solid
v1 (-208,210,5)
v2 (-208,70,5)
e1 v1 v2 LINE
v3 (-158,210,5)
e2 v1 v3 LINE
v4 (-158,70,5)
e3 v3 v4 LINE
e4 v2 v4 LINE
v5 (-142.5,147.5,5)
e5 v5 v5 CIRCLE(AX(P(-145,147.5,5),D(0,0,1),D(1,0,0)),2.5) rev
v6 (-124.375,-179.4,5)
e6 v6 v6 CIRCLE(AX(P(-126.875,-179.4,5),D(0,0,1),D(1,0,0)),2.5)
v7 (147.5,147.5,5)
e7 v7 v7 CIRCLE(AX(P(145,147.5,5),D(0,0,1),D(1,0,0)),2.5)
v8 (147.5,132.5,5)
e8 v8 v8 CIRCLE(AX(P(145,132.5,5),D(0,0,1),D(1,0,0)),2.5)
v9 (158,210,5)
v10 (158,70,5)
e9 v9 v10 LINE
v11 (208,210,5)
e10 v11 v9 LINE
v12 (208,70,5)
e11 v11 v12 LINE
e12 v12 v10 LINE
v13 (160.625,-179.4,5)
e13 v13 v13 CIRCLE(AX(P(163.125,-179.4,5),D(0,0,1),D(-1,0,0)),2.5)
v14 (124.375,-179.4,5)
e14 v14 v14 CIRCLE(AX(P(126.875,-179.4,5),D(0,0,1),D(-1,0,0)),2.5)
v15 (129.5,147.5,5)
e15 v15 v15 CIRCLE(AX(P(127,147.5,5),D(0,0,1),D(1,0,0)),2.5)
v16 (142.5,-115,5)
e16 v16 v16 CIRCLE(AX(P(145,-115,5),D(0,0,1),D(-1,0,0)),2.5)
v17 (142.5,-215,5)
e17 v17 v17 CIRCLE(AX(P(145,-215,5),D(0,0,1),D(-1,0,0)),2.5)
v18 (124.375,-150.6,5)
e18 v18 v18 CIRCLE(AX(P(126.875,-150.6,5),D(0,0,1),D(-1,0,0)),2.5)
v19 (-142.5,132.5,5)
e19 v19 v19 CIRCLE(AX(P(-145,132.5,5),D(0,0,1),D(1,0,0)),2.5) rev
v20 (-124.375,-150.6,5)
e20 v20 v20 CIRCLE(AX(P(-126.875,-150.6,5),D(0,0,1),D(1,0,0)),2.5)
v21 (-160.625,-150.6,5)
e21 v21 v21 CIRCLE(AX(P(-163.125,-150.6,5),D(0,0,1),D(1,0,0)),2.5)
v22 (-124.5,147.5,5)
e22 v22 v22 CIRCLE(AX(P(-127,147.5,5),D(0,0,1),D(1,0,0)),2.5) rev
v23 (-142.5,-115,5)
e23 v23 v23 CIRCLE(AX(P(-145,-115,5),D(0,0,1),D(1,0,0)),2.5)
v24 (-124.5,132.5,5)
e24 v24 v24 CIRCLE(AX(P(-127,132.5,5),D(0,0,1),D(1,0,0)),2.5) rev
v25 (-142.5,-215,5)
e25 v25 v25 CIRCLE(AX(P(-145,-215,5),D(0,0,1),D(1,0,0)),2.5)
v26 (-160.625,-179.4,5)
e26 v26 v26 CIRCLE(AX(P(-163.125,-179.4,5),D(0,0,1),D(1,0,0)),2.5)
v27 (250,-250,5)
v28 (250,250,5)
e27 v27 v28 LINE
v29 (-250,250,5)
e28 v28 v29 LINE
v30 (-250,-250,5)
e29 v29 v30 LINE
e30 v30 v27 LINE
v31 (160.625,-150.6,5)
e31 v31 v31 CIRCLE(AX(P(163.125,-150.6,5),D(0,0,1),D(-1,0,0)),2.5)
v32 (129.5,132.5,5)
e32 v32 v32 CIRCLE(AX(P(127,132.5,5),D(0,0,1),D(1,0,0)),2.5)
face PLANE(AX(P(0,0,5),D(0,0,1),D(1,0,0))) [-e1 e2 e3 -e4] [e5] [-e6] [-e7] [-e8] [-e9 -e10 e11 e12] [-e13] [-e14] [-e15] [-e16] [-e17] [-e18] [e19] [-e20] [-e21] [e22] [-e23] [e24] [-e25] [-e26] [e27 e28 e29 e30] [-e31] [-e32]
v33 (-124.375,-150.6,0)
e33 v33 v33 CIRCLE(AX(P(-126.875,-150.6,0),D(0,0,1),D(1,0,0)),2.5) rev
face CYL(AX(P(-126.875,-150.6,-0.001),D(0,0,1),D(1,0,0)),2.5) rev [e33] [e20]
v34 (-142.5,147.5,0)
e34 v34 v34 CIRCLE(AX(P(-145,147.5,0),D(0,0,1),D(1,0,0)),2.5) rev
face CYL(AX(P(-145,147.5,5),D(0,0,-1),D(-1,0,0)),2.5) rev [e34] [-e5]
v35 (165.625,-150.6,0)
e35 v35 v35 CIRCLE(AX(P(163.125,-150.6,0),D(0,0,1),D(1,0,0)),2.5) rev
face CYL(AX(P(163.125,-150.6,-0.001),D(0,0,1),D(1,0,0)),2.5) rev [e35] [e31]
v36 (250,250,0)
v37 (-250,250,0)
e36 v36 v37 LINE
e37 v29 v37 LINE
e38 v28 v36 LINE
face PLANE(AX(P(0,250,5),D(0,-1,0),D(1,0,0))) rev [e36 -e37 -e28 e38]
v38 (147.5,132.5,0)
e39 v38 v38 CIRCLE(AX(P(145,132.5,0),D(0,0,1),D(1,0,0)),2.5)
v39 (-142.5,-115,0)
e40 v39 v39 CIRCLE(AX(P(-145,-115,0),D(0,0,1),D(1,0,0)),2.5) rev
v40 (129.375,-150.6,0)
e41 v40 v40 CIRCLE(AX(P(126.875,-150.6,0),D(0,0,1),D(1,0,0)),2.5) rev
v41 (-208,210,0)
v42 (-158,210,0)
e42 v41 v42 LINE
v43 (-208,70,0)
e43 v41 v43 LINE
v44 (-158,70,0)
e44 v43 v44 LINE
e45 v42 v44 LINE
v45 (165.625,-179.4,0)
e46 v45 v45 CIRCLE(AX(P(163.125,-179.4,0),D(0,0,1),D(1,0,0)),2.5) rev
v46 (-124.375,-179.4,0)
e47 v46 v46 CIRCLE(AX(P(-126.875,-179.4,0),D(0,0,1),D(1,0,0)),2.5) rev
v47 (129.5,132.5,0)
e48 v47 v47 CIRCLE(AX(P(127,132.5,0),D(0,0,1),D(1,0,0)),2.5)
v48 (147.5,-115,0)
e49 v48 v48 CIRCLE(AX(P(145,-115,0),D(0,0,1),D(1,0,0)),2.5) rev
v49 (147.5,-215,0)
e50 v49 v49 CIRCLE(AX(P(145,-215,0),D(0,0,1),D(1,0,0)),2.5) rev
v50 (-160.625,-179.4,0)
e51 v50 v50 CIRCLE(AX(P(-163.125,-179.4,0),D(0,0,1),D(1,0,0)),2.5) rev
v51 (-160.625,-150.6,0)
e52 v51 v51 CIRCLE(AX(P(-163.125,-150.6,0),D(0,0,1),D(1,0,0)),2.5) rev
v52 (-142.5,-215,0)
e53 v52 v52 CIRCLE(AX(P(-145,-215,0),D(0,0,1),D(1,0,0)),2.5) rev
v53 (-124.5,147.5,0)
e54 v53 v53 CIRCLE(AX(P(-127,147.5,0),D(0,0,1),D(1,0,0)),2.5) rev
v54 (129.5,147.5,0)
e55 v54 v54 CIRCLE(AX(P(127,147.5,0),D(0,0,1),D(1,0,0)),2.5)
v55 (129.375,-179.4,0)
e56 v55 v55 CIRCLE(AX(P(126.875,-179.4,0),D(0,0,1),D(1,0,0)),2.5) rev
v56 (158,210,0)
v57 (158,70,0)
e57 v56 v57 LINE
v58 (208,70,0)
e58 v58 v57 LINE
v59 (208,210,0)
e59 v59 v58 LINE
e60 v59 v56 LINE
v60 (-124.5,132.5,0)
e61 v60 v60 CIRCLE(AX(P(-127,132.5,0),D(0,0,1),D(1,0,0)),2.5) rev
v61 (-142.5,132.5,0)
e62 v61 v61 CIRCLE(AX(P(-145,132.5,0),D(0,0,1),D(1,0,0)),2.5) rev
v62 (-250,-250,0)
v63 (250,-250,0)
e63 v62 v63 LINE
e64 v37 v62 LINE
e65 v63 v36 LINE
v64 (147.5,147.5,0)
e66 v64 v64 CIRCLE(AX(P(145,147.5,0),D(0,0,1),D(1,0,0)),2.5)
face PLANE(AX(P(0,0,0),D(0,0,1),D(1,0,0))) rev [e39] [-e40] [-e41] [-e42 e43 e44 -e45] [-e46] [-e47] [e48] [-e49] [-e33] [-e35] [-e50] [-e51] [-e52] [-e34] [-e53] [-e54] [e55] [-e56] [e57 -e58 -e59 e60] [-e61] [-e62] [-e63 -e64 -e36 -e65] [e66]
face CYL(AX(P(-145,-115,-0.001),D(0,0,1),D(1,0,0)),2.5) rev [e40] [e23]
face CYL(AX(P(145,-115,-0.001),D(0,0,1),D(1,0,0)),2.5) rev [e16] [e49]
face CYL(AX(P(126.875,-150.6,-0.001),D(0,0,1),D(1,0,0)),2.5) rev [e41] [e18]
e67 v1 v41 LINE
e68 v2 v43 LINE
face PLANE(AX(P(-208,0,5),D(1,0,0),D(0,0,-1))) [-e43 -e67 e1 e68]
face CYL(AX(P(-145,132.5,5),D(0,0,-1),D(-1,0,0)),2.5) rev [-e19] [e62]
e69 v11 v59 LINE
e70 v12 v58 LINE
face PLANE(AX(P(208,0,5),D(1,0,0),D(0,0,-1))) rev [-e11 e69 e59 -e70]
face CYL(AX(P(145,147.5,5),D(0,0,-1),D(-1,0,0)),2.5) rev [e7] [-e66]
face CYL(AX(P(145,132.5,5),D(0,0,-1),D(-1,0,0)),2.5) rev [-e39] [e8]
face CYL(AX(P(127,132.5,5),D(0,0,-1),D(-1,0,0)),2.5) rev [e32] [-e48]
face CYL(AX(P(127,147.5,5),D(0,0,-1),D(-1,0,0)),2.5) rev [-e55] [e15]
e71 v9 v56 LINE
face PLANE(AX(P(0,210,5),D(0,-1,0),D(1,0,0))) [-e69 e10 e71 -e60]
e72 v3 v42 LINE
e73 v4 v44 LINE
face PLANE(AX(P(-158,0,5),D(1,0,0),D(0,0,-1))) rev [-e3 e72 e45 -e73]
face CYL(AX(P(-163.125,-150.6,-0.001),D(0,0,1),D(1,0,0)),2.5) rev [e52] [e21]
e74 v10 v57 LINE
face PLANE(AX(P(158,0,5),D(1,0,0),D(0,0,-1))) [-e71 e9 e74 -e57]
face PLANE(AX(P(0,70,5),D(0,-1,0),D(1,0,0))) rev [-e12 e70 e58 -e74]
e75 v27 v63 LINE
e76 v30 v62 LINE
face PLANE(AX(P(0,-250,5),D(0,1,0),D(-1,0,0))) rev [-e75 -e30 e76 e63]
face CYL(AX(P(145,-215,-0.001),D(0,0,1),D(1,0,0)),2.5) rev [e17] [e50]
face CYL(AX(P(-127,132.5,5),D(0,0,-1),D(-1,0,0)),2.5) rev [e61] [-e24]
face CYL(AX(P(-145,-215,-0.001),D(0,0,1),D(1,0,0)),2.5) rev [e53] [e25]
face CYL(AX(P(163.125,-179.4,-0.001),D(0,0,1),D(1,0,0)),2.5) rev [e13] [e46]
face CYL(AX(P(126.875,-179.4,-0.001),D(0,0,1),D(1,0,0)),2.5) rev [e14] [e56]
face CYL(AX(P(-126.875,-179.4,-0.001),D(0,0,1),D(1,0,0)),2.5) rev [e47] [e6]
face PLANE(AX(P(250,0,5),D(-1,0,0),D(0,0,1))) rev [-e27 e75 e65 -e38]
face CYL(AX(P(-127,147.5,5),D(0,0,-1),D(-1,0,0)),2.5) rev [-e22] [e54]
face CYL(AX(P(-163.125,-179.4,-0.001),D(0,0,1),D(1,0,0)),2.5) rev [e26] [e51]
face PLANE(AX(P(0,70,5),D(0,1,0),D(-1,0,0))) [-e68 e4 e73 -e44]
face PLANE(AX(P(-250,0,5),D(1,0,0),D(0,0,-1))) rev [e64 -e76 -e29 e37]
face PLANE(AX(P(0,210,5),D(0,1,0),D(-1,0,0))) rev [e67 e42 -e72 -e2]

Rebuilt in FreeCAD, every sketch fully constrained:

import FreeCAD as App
import Part
import Sketcher
Q = App.Units.Quantity

doc = App.newDocument("Part")
body = doc.addObject("PartDesign::Body", "Body")

# Sketch on XY plane
sketch1 = doc.addObject("Sketcher::SketchObject", "Sketch")
body.addObject(sketch1)
sketch1.AttachmentSupport = (doc.XY_Plane, [""])
sketch1.MapMode = "FlatFace"
sketch1.addGeometry(Part.LineSegment(App.Vector(-250, 250, 0), App.Vector(-250, -250, 0)), False)
sketch1.addGeometry(Part.LineSegment(App.Vector(-250, -250, 0), App.Vector(250, -250, 0)), False)
sketch1.addGeometry(Part.LineSegment(App.Vector(250, -250, 0), App.Vector(250, 250, 0)), False)
sketch1.addGeometry(Part.LineSegment(App.Vector(250, 250, 0), App.Vector(-250, 250, 0)), False)
sketch1.addGeometry(Part.Circle(App.Vector(-145, 132.5, 0), App.Vector(0, 0, 1), 2.5), False)
sketch1.addGeometry(Part.Circle(App.Vector(-127, 132.5, 0), App.Vector(0, 0, 1), 2.5), False)
sketch1.addGeometry(Part.Circle(App.Vector(127, 132.5, 0), App.Vector(0, 0, 1), 2.5), False)
sketch1.addGeometry(Part.Circle(App.Vector(145, 132.5, 0), App.Vector(0, 0, 1), 2.5), False)
sketch1.addGeometry(Part.LineSegment(App.Vector(-158, 70, 0), App.Vector(-208, 70, 0)), False)
sketch1.addGeometry(Part.LineSegment(App.Vector(-208, 70, 0), App.Vector(-208, 210, 0)), False)
sketch1.addGeometry(Part.LineSegment(App.Vector(-208, 210, 0), App.Vector(-158, 210, 0)), False)
sketch1.addGeometry(Part.LineSegment(App.Vector(-158, 210, 0), App.Vector(-158, 70, 0)), False)
sketch1.addGeometry(Part.Circle(App.Vector(-145, 147.5, 0), App.Vector(0, 0, 1), 2.5), False)
sketch1.addGeometry(Part.Circle(App.Vector(-127, 147.5, 0), App.Vector(0, 0, 1), 2.5), False)
sketch1.addGeometry(Part.Circle(App.Vector(127, 147.5, 0), App.Vector(0, 0, 1), 2.5), False)
sketch1.addGeometry(Part.Circle(App.Vector(145, 147.5, 0), App.Vector(0, 0, 1), 2.5), False)
sketch1.addGeometry(Part.LineSegment(App.Vector(208, 70, 0), App.Vector(158, 70, 0)), False)
sketch1.addGeometry(Part.LineSegment(App.Vector(158, 70, 0), App.Vector(158, 210, 0)), False)
sketch1.addGeometry(Part.LineSegment(App.Vector(158, 210, 0), App.Vector(208, 210, 0)), False)
sketch1.addGeometry(Part.LineSegment(App.Vector(208, 210, 0), App.Vector(208, 70, 0)), False)
sketch1.addConstraint(Sketcher.Constraint("Coincident", 0, 2, 1, 1))
sketch1.addConstraint(Sketcher.Constraint("Coincident", 1, 2, 2, 1))
sketch1.addConstraint(Sketcher.Constraint("Coincident", 2, 2, 3, 1))
sketch1.addConstraint(Sketcher.Constraint("Coincident", 3, 2, 0, 1))
sketch1.addConstraint(Sketcher.Constraint("Coincident", 8, 2, 9, 1))
sketch1.addConstraint(Sketcher.Constraint("Coincident", 9, 2, 10, 1))
sketch1.addConstraint(Sketcher.Constraint("Coincident", 10, 2, 11, 1))
sketch1.addConstraint(Sketcher.Constraint("Coincident", 11, 2, 8, 1))
sketch1.addConstraint(Sketcher.Constraint("Coincident", 16, 2, 17, 1))
sketch1.addConstraint(Sketcher.Constraint("Coincident", 17, 2, 18, 1))
sketch1.addConstraint(Sketcher.Constraint("Coincident", 18, 2, 19, 1))
sketch1.addConstraint(Sketcher.Constraint("Coincident", 19, 2, 16, 1))
sketch1.addConstraint(Sketcher.Constraint("Vertical", 0))
sketch1.addConstraint(Sketcher.Constraint("Horizontal", 1))
sketch1.addConstraint(Sketcher.Constraint("Vertical", 2))
sketch1.addConstraint(Sketcher.Constraint("Horizontal", 3))
sketch1.addConstraint(Sketcher.Constraint("Horizontal", 8))
sketch1.addConstraint(Sketcher.Constraint("Vertical", 9))
sketch1.addConstraint(Sketcher.Constraint("Horizontal", 10))
sketch1.addConstraint(Sketcher.Constraint("Vertical", 11))
sketch1.addConstraint(Sketcher.Constraint("Horizontal", 16))
sketch1.addConstraint(Sketcher.Constraint("Vertical", 17))
sketch1.addConstraint(Sketcher.Constraint("Horizontal", 18))
sketch1.addConstraint(Sketcher.Constraint("Vertical", 19))
sketch1.addConstraint(Sketcher.Constraint("Equal", 4, 5))
sketch1.addConstraint(Sketcher.Constraint("Equal", 5, 6))
sketch1.addConstraint(Sketcher.Constraint("Equal", 6, 7))
sketch1.addConstraint(Sketcher.Constraint("Equal", 7, 12))
sketch1.addConstraint(Sketcher.Constraint("Equal", 12, 13))
sketch1.addConstraint(Sketcher.Constraint("Equal", 13, 14))
sketch1.addConstraint(Sketcher.Constraint("Equal", 14, 15))
sketch1.addConstraint(Sketcher.Constraint("Symmetric", 0, 2, 2, 2, -1, 1))
sketch1.addConstraint(Sketcher.Constraint("Symmetric", 5, 3, 6, 3, -2))
sketch1.addConstraint(Sketcher.Constraint("Symmetric", 4, 3, 7, 3, -2))
sketch1.addConstraint(Sketcher.Constraint("Symmetric", 13, 3, 14, 3, -2))
sketch1.addConstraint(Sketcher.Constraint("Symmetric", 12, 3, 15, 3, -2))
sketch1.addConstraint(Sketcher.Constraint("Symmetric", 11, 2, 16, 2, -2))
sketch1.addConstraint(Sketcher.Constraint("Symmetric", 9, 2, 18, 2, -2))
sketch1.addConstraint(Sketcher.Constraint("Horizontal", 4, 3, 5, 3))
sketch1.addConstraint(Sketcher.Constraint("Horizontal", 12, 3, 13, 3))
sketch1.addConstraint(Sketcher.Constraint("Vertical", 4, 3, 12, 3))
sketch1.addConstraint(Sketcher.Constraint("Vertical", 5, 3, 13, 3))
sketch1.addConstraint(Sketcher.Constraint("Equal", 3, 0))
sketch1.addConstraint(Sketcher.Constraint("Diameter", 4, Q("5 mm")))
sketch1.addConstraint(Sketcher.Constraint("DistanceX", 1, 1, 1, 2, Q("500 mm")))
sketch1.addConstraint(Sketcher.Constraint("DistanceX", 8, 2, 8, 1, Q("50 mm")))
sketch1.addConstraint(Sketcher.Constraint("DistanceY", 9, 1, 9, 2, Q("140 mm")))
sketch1.addConstraint(Sketcher.Constraint("DistanceX", 4, 3, -1, 1, Q("145 mm")))
sketch1.addConstraint(Sketcher.Constraint("DistanceX", 5, 3, -1, 1, Q("127 mm")))
sketch1.addConstraint(Sketcher.Constraint("DistanceX", 8, 2, -1, 1, Q("208 mm")))
sketch1.addConstraint(Sketcher.Constraint("DistanceY", -1, 1, 8, 2, Q("70 mm")))
sketch1.addConstraint(Sketcher.Constraint("DistanceY", 4, 3, 12, 3, Q("15 mm")))
sketch1.addConstraint(Sketcher.Constraint("DistanceY", -1, 1, 4, 3, Q("132.5 mm")))
pad1 = doc.addObject("PartDesign::Pad", "Pad")
body.addObject(pad1)
pad1.Profile = sketch1
pad1.Length = 5

# Sketch on XY plane
sketch2 = doc.addObject("Sketcher::SketchObject", "Sketch001")
body.addObject(sketch2)
sketch2.AttachmentSupport = (doc.XY_Plane, [""])
sketch2.MapMode = "FlatFace"
sketch2.addGeometry(Part.Circle(App.Vector(-145, 132.5, 0), App.Vector(0, 0, 1), 2.5), False)
sketch2.addGeometry(Part.Circle(App.Vector(-163.1, -150.6, 0), App.Vector(0, 0, 1), 2.5), False)
sketch2.addGeometry(Part.Circle(App.Vector(-126.9, -150.6, 0), App.Vector(0, 0, 1), 2.5), False)
sketch2.addGeometry(Part.Circle(App.Vector(-126.9, -179.4, 0), App.Vector(0, 0, 1), 2.5), False)
sketch2.addGeometry(Part.Circle(App.Vector(-163.1, -179.4, 0), App.Vector(0, 0, 1), 2.5), False)
sketch2.addGeometry(Part.Circle(App.Vector(-145, -115, 0), App.Vector(0, 0, 1), 2.5), False)
sketch2.addGeometry(Part.Circle(App.Vector(-145, -215, 0), App.Vector(0, 0, 1), 2.5), False)
sketch2.addGeometry(Part.Circle(App.Vector(145, -215, 0), App.Vector(0, 0, 1), 2.5), False)
sketch2.addGeometry(Part.Circle(App.Vector(145, -115, 0), App.Vector(0, 0, 1), 2.5), False)
sketch2.addGeometry(Part.Circle(App.Vector(163.1, -179.4, 0), App.Vector(0, 0, 1), 2.5), False)
sketch2.addGeometry(Part.Circle(App.Vector(126.9, -179.4, 0), App.Vector(0, 0, 1), 2.5), False)
sketch2.addGeometry(Part.Circle(App.Vector(126.9, -150.6, 0), App.Vector(0, 0, 1), 2.5), False)
sketch2.addGeometry(Part.Circle(App.Vector(163.1, -150.6, 0), App.Vector(0, 0, 1), 2.5), False)
sketch2.addConstraint(Sketcher.Constraint("Equal", 0, 1))
sketch2.addConstraint(Sketcher.Constraint("Equal", 1, 2))
sketch2.addConstraint(Sketcher.Constraint("Equal", 2, 3))
sketch2.addConstraint(Sketcher.Constraint("Equal", 3, 4))
sketch2.addConstraint(Sketcher.Constraint("Equal", 4, 5))
sketch2.addConstraint(Sketcher.Constraint("Equal", 5, 6))
sketch2.addConstraint(Sketcher.Constraint("Equal", 6, 7))
sketch2.addConstraint(Sketcher.Constraint("Equal", 7, 8))
sketch2.addConstraint(Sketcher.Constraint("Equal", 8, 9))
sketch2.addConstraint(Sketcher.Constraint("Equal", 9, 10))
sketch2.addConstraint(Sketcher.Constraint("Equal", 10, 11))
sketch2.addConstraint(Sketcher.Constraint("Equal", 11, 12))
sketch2.addConstraint(Sketcher.Constraint("Symmetric", 6, 3, 7, 3, -2))
sketch2.addConstraint(Sketcher.Constraint("Symmetric", 5, 3, 8, 3, -2))
sketch2.addConstraint(Sketcher.Constraint("Symmetric", 4, 3, 9, 3, -2))
sketch2.addConstraint(Sketcher.Constraint("Symmetric", 3, 3, 10, 3, -2))
sketch2.addConstraint(Sketcher.Constraint("Symmetric", 2, 3, 11, 3, -2))
sketch2.addConstraint(Sketcher.Constraint("Symmetric", 1, 3, 12, 3, -2))
sketch2.addConstraint(Sketcher.Constraint("Horizontal", 1, 3, 2, 3))
sketch2.addConstraint(Sketcher.Constraint("Horizontal", 3, 3, 4, 3))
sketch2.addConstraint(Sketcher.Constraint("Vertical", 2, 3, 3, 3))
sketch2.addConstraint(Sketcher.Constraint("Vertical", 1, 3, 4, 3))
sketch2.addConstraint(Sketcher.Constraint("Vertical", 0, 3, 5, 3))
sketch2.addConstraint(Sketcher.Constraint("Vertical", 5, 3, 6, 3))
sketch2.addConstraint(Sketcher.Constraint("Diameter", 0, Q("5 mm")))
sketch2.addConstraint(Sketcher.Constraint("DistanceX", 0, 3, -1, 1, Q("145 mm")))
sketch2.addConstraint(Sketcher.Constraint("DistanceY", 5, 3, -1, 1, Q("115 mm")))
sketch2.addConstraint(Sketcher.Constraint("DistanceY", 6, 3, -1, 1, Q("215 mm")))
sketch2.addConstraint(Sketcher.Constraint("DistanceX", 3, 3, 9, 3, Q("290 mm")))
sketch2.addConstraint(Sketcher.Constraint("DistanceY", -1, 1, 0, 3, Q("132.5 mm")))
sketch2.addConstraint(Sketcher.Constraint("DistanceY", 1, 3, -1, 1, Q("150.6 mm")))
sketch2.addConstraint(Sketcher.Constraint("DistanceY", 3, 3, -1, 1, Q("179.4 mm")))
sketch2.addConstraint(Sketcher.Constraint("DistanceX", 1, 3, 2, 3, Q("36.25 mm")))
pocket1 = doc.addObject("PartDesign::Pocket", "Pocket")
body.addObject(pocket1)
pocket1.Profile = sketch2
pocket1.Length = 5
pocket1.Reversed = True

doc.recompute()
